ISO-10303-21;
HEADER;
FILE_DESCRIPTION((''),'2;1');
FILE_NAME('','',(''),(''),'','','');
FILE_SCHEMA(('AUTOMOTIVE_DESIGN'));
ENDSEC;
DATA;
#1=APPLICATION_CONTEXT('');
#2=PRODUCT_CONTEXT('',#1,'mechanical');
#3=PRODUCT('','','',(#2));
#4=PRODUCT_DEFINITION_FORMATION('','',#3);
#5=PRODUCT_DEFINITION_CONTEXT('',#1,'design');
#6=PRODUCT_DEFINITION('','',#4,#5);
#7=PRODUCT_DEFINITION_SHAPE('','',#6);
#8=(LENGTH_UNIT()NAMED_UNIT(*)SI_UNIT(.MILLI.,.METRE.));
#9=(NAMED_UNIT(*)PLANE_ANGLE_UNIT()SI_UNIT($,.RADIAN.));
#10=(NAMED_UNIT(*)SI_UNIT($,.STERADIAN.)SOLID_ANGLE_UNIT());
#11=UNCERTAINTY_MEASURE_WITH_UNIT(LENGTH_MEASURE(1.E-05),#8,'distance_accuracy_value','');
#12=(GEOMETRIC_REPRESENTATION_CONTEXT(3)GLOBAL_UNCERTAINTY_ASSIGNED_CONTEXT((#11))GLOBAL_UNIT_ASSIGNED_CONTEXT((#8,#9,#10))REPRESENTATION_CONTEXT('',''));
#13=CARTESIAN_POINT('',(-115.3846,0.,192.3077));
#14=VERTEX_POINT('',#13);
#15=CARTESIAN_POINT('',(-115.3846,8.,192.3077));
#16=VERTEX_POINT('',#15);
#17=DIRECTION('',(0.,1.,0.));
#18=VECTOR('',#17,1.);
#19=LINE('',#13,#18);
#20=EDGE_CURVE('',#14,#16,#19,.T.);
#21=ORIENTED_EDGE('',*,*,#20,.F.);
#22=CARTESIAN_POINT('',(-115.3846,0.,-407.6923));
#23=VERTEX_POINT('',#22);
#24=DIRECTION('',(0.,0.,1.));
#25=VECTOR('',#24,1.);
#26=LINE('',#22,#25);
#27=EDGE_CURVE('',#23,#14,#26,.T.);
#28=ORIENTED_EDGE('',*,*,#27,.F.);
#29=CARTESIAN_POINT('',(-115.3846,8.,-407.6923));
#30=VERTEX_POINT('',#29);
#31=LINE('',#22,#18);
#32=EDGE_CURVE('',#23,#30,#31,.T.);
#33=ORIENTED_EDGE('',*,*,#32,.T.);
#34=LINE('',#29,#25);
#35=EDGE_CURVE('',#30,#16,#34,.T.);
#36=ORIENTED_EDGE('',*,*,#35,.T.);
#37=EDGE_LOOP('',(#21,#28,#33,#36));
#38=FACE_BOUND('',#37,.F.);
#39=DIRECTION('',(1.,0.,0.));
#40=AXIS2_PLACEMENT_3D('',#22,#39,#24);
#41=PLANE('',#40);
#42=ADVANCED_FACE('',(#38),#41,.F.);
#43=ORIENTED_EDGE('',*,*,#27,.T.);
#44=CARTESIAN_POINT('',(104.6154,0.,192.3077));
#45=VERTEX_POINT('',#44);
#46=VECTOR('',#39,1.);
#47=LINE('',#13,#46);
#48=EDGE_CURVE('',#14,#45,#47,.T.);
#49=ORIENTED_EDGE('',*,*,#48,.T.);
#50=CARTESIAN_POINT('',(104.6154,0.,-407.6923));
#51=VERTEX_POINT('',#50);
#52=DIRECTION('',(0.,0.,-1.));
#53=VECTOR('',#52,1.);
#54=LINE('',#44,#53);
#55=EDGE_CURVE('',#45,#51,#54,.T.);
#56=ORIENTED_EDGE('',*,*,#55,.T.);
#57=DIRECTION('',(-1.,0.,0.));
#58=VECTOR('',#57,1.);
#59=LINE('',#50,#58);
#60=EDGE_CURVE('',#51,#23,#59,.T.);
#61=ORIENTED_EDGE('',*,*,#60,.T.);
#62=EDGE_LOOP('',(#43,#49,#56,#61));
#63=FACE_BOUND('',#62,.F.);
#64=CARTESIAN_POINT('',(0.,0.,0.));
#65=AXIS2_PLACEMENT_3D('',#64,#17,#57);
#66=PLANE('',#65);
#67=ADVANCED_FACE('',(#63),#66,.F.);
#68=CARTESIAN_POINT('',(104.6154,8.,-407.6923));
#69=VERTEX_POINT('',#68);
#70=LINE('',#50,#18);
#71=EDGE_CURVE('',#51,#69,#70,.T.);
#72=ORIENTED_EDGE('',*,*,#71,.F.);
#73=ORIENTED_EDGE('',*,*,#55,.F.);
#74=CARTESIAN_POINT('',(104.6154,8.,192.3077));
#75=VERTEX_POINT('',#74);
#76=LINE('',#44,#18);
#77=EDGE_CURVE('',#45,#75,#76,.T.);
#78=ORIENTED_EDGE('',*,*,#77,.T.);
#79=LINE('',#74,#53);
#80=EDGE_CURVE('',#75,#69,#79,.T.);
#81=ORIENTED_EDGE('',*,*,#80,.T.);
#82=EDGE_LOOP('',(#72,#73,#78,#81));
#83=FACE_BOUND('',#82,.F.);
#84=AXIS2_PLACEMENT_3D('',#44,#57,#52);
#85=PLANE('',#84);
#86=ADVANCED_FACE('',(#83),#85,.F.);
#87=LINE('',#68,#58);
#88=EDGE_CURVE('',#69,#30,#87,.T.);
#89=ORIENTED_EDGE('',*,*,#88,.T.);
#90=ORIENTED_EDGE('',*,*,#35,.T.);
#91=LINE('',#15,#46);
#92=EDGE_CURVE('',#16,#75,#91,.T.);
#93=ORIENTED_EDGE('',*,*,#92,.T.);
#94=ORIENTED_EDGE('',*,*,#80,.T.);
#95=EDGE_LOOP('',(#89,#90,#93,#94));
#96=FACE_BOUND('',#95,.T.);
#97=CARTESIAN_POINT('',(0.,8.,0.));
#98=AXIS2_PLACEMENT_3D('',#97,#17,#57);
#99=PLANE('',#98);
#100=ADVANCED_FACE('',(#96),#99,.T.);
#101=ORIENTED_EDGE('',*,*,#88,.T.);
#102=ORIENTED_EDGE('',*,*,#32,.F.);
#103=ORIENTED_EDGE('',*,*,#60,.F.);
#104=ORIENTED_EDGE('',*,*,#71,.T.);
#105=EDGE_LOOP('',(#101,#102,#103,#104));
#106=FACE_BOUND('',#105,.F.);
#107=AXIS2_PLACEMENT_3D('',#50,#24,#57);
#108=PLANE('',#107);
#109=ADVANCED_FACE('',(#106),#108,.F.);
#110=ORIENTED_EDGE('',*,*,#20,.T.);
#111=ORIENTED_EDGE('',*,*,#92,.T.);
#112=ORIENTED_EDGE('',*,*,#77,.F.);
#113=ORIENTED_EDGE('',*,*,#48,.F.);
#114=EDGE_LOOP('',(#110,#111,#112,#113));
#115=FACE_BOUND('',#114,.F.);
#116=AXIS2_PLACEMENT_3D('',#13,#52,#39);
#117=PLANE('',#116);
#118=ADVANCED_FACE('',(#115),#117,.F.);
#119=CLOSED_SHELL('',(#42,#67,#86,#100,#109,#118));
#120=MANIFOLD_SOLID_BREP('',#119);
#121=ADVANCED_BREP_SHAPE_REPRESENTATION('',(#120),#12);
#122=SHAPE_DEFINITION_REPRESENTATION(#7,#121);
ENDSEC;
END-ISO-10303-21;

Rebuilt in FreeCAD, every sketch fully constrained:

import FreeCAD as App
import Part
import Sketcher
Q = App.Units.Quantity


def add_polygon(sketch, points):
    """Adds a closed chain of lines whose ends are joined by coincident constraints."""
    first, n = sketch.GeometryCount, len(points)
    for a, b in zip(points, points[1:] + points[:1]):
        sketch.addGeometry(Part.LineSegment(App.Vector(*a, 0), App.Vector(*b, 0)), False)
    for i in range(n):
        sketch.addConstraint(Sketcher.Constraint("Coincident", first + i, 2, first + (i + 1) % n, 1))

doc = App.newDocument("Part")
body = doc.addObject("PartDesign::Body", "Body")

# Sketch on XZ plane
sketch1 = doc.addObject("Sketcher::SketchObject", "Sketch")
body.addObject(sketch1)
sketch1.AttachmentSupport = (doc.XZ_Plane, [""])
sketch1.MapMode = "FlatFace"
add_polygon(sketch1, [(-115, -408), (-115, 192), (105, 192), (105, -408)])  # lines 0-3
sketch1.addConstraint(Sketcher.Constraint("Vertical", 0))
sketch1.addConstraint(Sketcher.Constraint("Horizontal", 1))
sketch1.addConstraint(Sketcher.Constraint("Vertical", 2))
sketch1.addConstraint(Sketcher.Constraint("Horizontal", 3))
sketch1.addConstraint(Sketcher.Constraint("DistanceX", 1, 1, 1, 2, Q("220 mm")))
sketch1.addConstraint(Sketcher.Constraint("DistanceY", 0, 1, 0, 2, Q("600 mm")))
sketch1.addConstraint(Sketcher.Constraint("DistanceX", 0, 2, -1, 1, Q("115.3846 mm")))
sketch1.addConstraint(Sketcher.Constraint("DistanceY", -1, 1, 0, 2, Q("192.3077 mm")))
pad1 = doc.addObject("PartDesign::Pad", "Pad")
body.addObject(pad1)
pad1.Profile = sketch1
pad1.Length = 8
pad1.Reversed = True

doc.recompute()
